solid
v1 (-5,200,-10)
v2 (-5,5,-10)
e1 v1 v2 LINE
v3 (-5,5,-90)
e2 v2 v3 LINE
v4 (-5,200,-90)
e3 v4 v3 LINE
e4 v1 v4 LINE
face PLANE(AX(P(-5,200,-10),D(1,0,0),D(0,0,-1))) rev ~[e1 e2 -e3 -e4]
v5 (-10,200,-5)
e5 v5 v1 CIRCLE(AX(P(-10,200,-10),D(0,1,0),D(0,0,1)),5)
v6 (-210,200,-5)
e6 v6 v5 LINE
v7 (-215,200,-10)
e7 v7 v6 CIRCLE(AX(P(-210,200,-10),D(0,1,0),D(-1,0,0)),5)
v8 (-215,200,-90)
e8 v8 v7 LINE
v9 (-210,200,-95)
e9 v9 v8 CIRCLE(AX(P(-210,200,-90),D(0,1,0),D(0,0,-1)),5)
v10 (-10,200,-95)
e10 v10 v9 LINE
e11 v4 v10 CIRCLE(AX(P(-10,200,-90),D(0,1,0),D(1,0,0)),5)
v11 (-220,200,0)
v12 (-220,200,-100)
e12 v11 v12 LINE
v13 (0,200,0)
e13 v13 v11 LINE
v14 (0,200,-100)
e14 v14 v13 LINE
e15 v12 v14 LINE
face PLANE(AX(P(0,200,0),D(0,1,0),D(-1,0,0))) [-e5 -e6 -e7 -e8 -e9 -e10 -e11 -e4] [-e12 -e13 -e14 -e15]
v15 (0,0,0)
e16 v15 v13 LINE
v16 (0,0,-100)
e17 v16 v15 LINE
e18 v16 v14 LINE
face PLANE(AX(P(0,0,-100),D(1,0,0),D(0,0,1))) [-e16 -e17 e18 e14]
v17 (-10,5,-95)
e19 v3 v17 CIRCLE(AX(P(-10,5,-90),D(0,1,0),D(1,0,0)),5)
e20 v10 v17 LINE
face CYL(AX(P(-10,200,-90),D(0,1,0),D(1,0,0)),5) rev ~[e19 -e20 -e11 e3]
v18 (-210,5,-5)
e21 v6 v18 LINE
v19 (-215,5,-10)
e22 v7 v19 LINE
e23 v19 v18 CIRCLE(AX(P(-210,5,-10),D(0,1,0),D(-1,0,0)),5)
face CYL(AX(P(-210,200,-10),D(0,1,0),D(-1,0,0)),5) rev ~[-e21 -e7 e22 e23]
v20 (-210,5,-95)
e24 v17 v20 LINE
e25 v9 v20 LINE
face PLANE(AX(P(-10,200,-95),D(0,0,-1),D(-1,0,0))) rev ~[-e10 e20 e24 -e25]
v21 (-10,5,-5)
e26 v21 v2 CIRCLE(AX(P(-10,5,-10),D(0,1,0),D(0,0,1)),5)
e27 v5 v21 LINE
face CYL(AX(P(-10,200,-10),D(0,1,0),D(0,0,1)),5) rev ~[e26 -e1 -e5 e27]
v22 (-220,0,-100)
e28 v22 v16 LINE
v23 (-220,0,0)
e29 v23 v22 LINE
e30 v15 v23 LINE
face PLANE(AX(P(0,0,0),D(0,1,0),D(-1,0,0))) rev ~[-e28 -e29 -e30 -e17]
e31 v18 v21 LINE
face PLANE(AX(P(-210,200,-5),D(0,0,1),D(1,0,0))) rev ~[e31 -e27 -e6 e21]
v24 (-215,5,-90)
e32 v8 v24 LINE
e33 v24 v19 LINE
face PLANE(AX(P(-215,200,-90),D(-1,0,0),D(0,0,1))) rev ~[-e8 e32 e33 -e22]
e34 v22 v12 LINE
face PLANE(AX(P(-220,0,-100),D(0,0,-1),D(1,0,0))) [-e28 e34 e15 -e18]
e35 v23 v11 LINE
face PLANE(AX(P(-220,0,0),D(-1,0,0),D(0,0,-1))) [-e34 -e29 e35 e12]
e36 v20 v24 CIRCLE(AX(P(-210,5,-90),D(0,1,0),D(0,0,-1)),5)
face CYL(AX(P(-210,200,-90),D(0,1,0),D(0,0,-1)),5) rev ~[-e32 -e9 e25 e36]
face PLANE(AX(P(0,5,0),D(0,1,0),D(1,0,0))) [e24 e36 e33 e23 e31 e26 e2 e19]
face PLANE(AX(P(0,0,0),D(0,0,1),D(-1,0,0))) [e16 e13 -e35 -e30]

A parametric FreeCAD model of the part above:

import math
import FreeCAD as App
import Part
import Sketcher

doc = App.newDocument("Part")
body = doc.addObject("PartDesign::Body", "Body")

sketch1 = doc.addObject("Sketcher::SketchObject", "Sketch")
body.addObject(sketch1)
sketch1.AttachmentSupport = (doc.XZ_Plane, [""])
sketch1.MapMode = "FlatFace"
sketch1.addGeometry([
    Part.LineSegment(App.Vector(-220, 0, 0), App.Vector(0, 0, 0)),
    Part.LineSegment(App.Vector(0, 0, 0), App.Vector(0, -100, 0)),
    Part.LineSegment(App.Vector(0, -100, 0), App.Vector(-220, -100, 0)),
    Part.LineSegment(App.Vector(-220, -100, 0), App.Vector(-220, 0, 0)),
], False)
sketch1.addConstraint([
    Sketcher.Constraint("Coincident", 0, 2, 1, 1),
    Sketcher.Constraint("Coincident", 1, 2, 2, 1),
    Sketcher.Constraint("Coincident", 2, 2, 3, 1),
    Sketcher.Constraint("Coincident", 3, 2, 0, 1),
    Sketcher.Constraint("Horizontal", 0),
    Sketcher.Constraint("Vertical", 1),
    Sketcher.Constraint("Horizontal", 2),
    Sketcher.Constraint("Vertical", 3),
    Sketcher.Constraint("Coincident", 0, 2, -1, 1),
    Sketcher.Constraint("DistanceX", 0, 1, 0, 2, 220.0),
    Sketcher.Constraint("DistanceY", 1, 2, 1, 1, 100.0),
])
pad1 = doc.addObject("PartDesign::Pad", "Pad")
body.addObject(pad1)
pad1.Profile = sketch1
pad1.Length = 200
pad1.Reversed = True

sketch2 = doc.addObject("Sketcher::SketchObject", "Sketch001")
body.addObject(sketch2)
sketch2.AttachmentSupport = (doc.XZ_Plane, [""])
sketch2.MapMode = "FlatFace"
sketch2.AttachmentOffset = App.Placement(App.Vector(0, 0, -200), App.Rotation())
sketch2.addGeometry([
    Part.ArcOfCircle(Part.Circle(App.Vector(-210, -10, 0), App.Vector(0, 0, 1), 5), math.radians(90), math.radians(180)),
    Part.LineSegment(App.Vector(-210, -5, 0), App.Vector(-10, -5, 0)),
    Part.ArcOfCircle(Part.Circle(App.Vector(-10, -10, 0), App.Vector(0, 0, 1), 5), math.radians(0), math.radians(90)),
    Part.LineSegment(App.Vector(-5, -10, 0), App.Vector(-5, -90, 0)),
    Part.ArcOfCircle(Part.Circle(App.Vector(-10, -90, 0), App.Vector(0, 0, 1), 5), math.radians(-90), math.radians(0)),
    Part.LineSegment(App.Vector(-10, -95, 0), App.Vector(-210, -95, 0)),
    Part.ArcOfCircle(Part.Circle(App.Vector(-210, -90, 0), App.Vector(0, 0, 1), 5), math.radians(180), math.radians(270)),
    Part.LineSegment(App.Vector(-215, -90, 0), App.Vector(-215, -10, 0)),
], False)
sketch2.addConstraint([
    Sketcher.Constraint("Tangent", 0, 1, 1, 1),
    Sketcher.Constraint("Tangent", 1, 2, 2, 2),
    Sketcher.Constraint("Tangent", 2, 1, 3, 1),
    Sketcher.Constraint("Tangent", 3, 2, 4, 2),
    Sketcher.Constraint("Tangent", 4, 1, 5, 1),
    Sketcher.Constraint("Tangent", 5, 2, 6, 2),
    Sketcher.Constraint("Tangent", 6, 1, 7, 1),
    Sketcher.Constraint("Tangent", 7, 2, 0, 2),
    Sketcher.Constraint("Horizontal", 1),
    Sketcher.Constraint("Vertical", 3),
    Sketcher.Constraint("Horizontal", 5),
    Sketcher.Constraint("Vertical", 7),
    Sketcher.Constraint("Equal", 0, 2),
    Sketcher.Constraint("Equal", 2, 4),
    Sketcher.Constraint("Equal", 4, 6),
    Sketcher.Constraint("Radius", 0, 5.0),
    Sketcher.Constraint("DistanceY", 0, 1, -1, 1, 5.0),
    Sketcher.Constraint("DistanceX", 2, 1, -1, 1, 5.0),
    Sketcher.Constraint("DistanceX", 1, 1, 1, 2, 200.0),
    Sketcher.Constraint("DistanceY", 3, 2, 3, 1, 80.0),
])
pocket1 = doc.addObject("PartDesign::Pocket", "Pocket")
body.addObject(pocket1)
pocket1.Profile = sketch2
pocket1.Length = 195
pocket1.Reversed = True

doc.recompute()
